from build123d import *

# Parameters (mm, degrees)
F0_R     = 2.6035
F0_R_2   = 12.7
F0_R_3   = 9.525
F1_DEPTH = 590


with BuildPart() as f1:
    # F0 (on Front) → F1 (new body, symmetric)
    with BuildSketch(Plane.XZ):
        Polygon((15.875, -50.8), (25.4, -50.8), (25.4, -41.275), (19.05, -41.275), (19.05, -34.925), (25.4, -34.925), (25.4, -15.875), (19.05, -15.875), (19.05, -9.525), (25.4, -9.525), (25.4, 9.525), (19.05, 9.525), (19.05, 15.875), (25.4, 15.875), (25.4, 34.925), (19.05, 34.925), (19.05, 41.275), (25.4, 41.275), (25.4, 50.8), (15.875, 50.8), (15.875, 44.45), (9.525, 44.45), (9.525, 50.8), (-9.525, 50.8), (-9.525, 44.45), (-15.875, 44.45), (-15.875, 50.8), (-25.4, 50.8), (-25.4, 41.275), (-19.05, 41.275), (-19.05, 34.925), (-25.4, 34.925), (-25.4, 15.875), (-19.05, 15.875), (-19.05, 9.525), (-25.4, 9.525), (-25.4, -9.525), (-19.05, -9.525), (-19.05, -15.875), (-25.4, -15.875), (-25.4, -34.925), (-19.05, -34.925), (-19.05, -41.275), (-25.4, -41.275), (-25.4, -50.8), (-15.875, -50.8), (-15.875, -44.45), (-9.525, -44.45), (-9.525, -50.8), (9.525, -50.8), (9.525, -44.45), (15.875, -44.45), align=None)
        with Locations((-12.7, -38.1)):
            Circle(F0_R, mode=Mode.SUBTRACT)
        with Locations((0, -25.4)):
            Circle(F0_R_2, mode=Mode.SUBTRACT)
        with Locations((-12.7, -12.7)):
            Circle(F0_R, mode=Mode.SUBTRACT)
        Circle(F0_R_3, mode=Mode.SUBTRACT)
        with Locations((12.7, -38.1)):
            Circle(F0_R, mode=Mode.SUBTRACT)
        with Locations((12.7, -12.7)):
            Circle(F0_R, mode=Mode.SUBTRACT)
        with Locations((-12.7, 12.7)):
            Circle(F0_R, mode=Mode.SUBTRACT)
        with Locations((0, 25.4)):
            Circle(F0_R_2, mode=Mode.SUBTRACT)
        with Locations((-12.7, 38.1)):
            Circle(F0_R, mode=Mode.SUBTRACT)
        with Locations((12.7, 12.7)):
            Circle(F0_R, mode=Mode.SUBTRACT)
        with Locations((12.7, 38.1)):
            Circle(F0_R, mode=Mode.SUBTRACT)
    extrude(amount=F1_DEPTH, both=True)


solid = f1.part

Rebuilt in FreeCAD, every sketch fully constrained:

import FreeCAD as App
import Part
import Sketcher
from FreeCAD import Vector
Q = App.Units.Quantity

doc = App.newDocument("Part")
body = doc.addObject("PartDesign::Body", "Body")

# Sketch on XZ plane
sketch1 = body.newObject("Sketcher::SketchObject", "Sketch")
sketch1.AttachmentSupport = (doc.getObject("XZ_Plane"), [""])
sketch1.MapMode = "FlatFace"
sketch1.addGeometry([
    Part.LineSegment(Vector(15.9, -50.8, 0), Vector(25.4, -50.8, 0)),  # 0
    Part.LineSegment(Vector(25.4, -50.8, 0), Vector(25.4, -41.3, 0)),  # 1
    Part.LineSegment(Vector(25.4, -41.3, 0), Vector(19.1, -41.3, 0)),  # 2
    Part.LineSegment(Vector(19.1, -41.3, 0), Vector(19.1, -34.9, 0)),  # 3
    Part.LineSegment(Vector(19.1, -34.9, 0), Vector(25.4, -34.9, 0)),  # 4
    Part.LineSegment(Vector(25.4, -34.9, 0), Vector(25.4, -15.9, 0)),  # 5
    Part.LineSegment(Vector(25.4, -15.9, 0), Vector(19.1, -15.9, 0)),  # 6
    Part.LineSegment(Vector(19.1, -15.9, 0), Vector(19.1, -9.5, 0)),  # 7
    Part.LineSegment(Vector(19.1, -9.5, 0), Vector(25.4, -9.5, 0)),  # 8
    Part.LineSegment(Vector(25.4, -9.5, 0), Vector(25.4, 9.5, 0)),  # 9
    Part.LineSegment(Vector(25.4, 9.5, 0), Vector(19.1, 9.5, 0)),  # 10
    Part.LineSegment(Vector(19.1, 9.5, 0), Vector(19.1, 15.9, 0)),  # 11
    Part.LineSegment(Vector(19.1, 15.9, 0), Vector(25.4, 15.9, 0)),  # 12
    Part.LineSegment(Vector(25.4, 15.9, 0), Vector(25.4, 34.9, 0)),  # 13
    Part.LineSegment(Vector(25.4, 34.9, 0), Vector(19.1, 34.9, 0)),  # 14
    Part.LineSegment(Vector(19.1, 34.9, 0), Vector(19.1, 41.3, 0)),  # 15
    Part.LineSegment(Vector(19.1, 41.3, 0), Vector(25.4, 41.3, 0)),  # 16
    Part.LineSegment(Vector(25.4, 41.3, 0), Vector(25.4, 50.8, 0)),  # 17
    Part.LineSegment(Vector(25.4, 50.8, 0), Vector(15.9, 50.8, 0)),  # 18
    Part.LineSegment(Vector(15.9, 50.8, 0), Vector(15.9, 44.5, 0)),  # 19
    Part.LineSegment(Vector(15.9, 44.5, 0), Vector(9.5, 44.5, 0)),  # 20
    Part.LineSegment(Vector(9.5, 44.5, 0), Vector(9.5, 50.8, 0)),  # 21
    Part.LineSegment(Vector(9.5, 50.8, 0), Vector(-9.5, 50.8, 0)),  # 22
    Part.LineSegment(Vector(-9.5, 50.8, 0), Vector(-9.5, 44.5, 0)),  # 23
    Part.LineSegment(Vector(-9.5, 44.5, 0), Vector(-15.9, 44.5, 0)),  # 24
    Part.LineSegment(Vector(-15.9, 44.5, 0), Vector(-15.9, 50.8, 0)),  # 25
    Part.LineSegment(Vector(-15.9, 50.8, 0), Vector(-25.4, 50.8, 0)),  # 26
    Part.LineSegment(Vector(-25.4, 50.8, 0), Vector(-25.4, 41.3, 0)),  # 27
    Part.LineSegment(Vector(-25.4, 41.3, 0), Vector(-19.1, 41.3, 0)),  # 28
    Part.LineSegment(Vector(-19.1, 41.3, 0), Vector(-19.1, 34.9, 0)),  # 29
    Part.LineSegment(Vector(-19.1, 34.9, 0), Vector(-25.4, 34.9, 0)),  # 30
    Part.LineSegment(Vector(-25.4, 34.9, 0), Vector(-25.4, 15.9, 0)),  # 31
    Part.LineSegment(Vector(-25.4, 15.9, 0), Vector(-19.1, 15.9, 0)),  # 32
    Part.LineSegment(Vector(-19.1, 15.9, 0), Vector(-19.1, 9.5, 0)),  # 33
    Part.LineSegment(Vector(-19.1, 9.5, 0), Vector(-25.4, 9.5, 0)),  # 34
    Part.LineSegment(Vector(-25.4, 9.5, 0), Vector(-25.4, -9.5, 0)),  # 35
    Part.LineSegment(Vector(-25.4, -9.5, 0), Vector(-19.1, -9.5, 0)),  # 36
    Part.LineSegment(Vector(-19.1, -9.5, 0), Vector(-19.1, -15.9, 0)),  # 37
    Part.LineSegment(Vector(-19.1, -15.9, 0), Vector(-25.4, -15.9, 0)),  # 38
    Part.LineSegment(Vector(-25.4, -15.9, 0), Vector(-25.4, -34.9, 0)),  # 39
    Part.LineSegment(Vector(-25.4, -34.9, 0), Vector(-19.1, -34.9, 0)),  # 40
    Part.LineSegment(Vector(-19.1, -34.9, 0), Vector(-19.1, -41.3, 0)),  # 41
    Part.LineSegment(Vector(-19.1, -41.3, 0), Vector(-25.4, -41.3, 0)),  # 42
    Part.LineSegment(Vector(-25.4, -41.3, 0), Vector(-25.4, -50.8, 0)),  # 43
    Part.LineSegment(Vector(-25.4, -50.8, 0), Vector(-15.9, -50.8, 0)),  # 44
    Part.LineSegment(Vector(-15.9, -50.8, 0), Vector(-15.9, -44.5, 0)),  # 45
    Part.LineSegment(Vector(-15.9, -44.5, 0), Vector(-9.5, -44.5, 0)),  # 46
    Part.LineSegment(Vector(-9.5, -44.5, 0), Vector(-9.5, -50.8, 0)),  # 47
    Part.LineSegment(Vector(-9.5, -50.8, 0), Vector(9.5, -50.8, 0)),  # 48
    Part.LineSegment(Vector(9.5, -50.8, 0), Vector(9.5, -44.5, 0)),  # 49
    Part.LineSegment(Vector(9.5, -44.5, 0), Vector(15.9, -44.5, 0)),  # 50
    Part.LineSegment(Vector(15.9, -44.5, 0), Vector(15.9, -50.8, 0)),  # 51
    Part.Circle(Vector(-12.7, -38.1, 0), Vector(0, 0, 1), 2.6),  # 52
    Part.Circle(Vector(-12.7, -12.7, 0), Vector(0, 0, 1), 2.6),  # 53
    Part.Circle(Vector(0, -25.4, 0), Vector(0, 0, 1), 12.7),  # 54
    Part.Circle(Vector(12.7, -38.1, 0), Vector(0, 0, 1), 2.6),  # 55
    Part.Circle(Vector(12.7, -12.7, 0), Vector(0, 0, 1), 2.6),  # 56
    Part.Circle(Vector(-12.7, 12.7, 0), Vector(0, 0, 1), 2.6),  # 57
    Part.Circle(Vector(-12.7, 38.1, 0), Vector(0, 0, 1), 2.6),  # 58
    Part.Circle(Vector(0, 0, 0), Vector(0, 0, 1), 9.5),  # 59
    Part.Circle(Vector(12.7, 12.7, 0), Vector(0, 0, 1), 2.6),  # 60
    Part.Circle(Vector(0, 25.4, 0), Vector(0, 0, 1), 12.7),  # 61
    Part.Circle(Vector(12.7, 38.1, 0), Vector(0, 0, 1), 2.6),  # 62
], False)
sketch1.addConstraint([
    Sketcher.Constraint("Coincident", 0, 2, 1, 1),
    Sketcher.Constraint("Coincident", 1, 2, 2, 1),
    Sketcher.Constraint("Coincident", 2, 2, 3, 1),
    Sketcher.Constraint("Coincident", 3, 2, 4, 1),
    Sketcher.Constraint("Coincident", 4, 2, 5, 1),
    Sketcher.Constraint("Coincident", 5, 2, 6, 1),
    Sketcher.Constraint("Coincident", 6, 2, 7, 1),
    Sketcher.Constraint("Coincident", 7, 2, 8, 1),
    Sketcher.Constraint("Coincident", 8, 2, 9, 1),
    Sketcher.Constraint("Coincident", 9, 2, 10, 1),
    Sketcher.Constraint("Coincident", 10, 2, 11, 1),
    Sketcher.Constraint("Coincident", 11, 2, 12, 1),
    Sketcher.Constraint("Coincident", 12, 2, 13, 1),
    Sketcher.Constraint("Coincident", 13, 2, 14, 1),
    Sketcher.Constraint("Coincident", 14, 2, 15, 1),
    Sketcher.Constraint("Coincident", 15, 2, 16, 1),
    Sketcher.Constraint("Coincident", 16, 2, 17, 1),
    Sketcher.Constraint("Coincident", 17, 2, 18, 1),
    Sketcher.Constraint("Coincident", 18, 2, 19, 1),
    Sketcher.Constraint("Coincident", 19, 2, 20, 1),
    Sketcher.Constraint("Coincident", 20, 2, 21, 1),
    Sketcher.Constraint("Coincident", 21, 2, 22, 1),
    Sketcher.Constraint("Coincident", 22, 2, 23, 1),
    Sketcher.Constraint("Coincident", 23, 2, 24, 1),
    Sketcher.Constraint("Coincident", 24, 2, 25, 1),
    Sketcher.Constraint("Coincident", 25, 2, 26, 1),
    Sketcher.Constraint("Coincident", 26, 2, 27, 1),
    Sketcher.Constraint("Coincident", 27, 2, 28, 1),
    Sketcher.Constraint("Coincident", 28, 2, 29, 1),
    Sketcher.Constraint("Coincident", 29, 2, 30, 1),
    Sketcher.Constraint("Coincident", 30, 2, 31, 1),
    Sketcher.Constraint("Coincident", 31, 2, 32, 1),
    Sketcher.Constraint("Coincident", 32, 2, 33, 1),
    Sketcher.Constraint("Coincident", 33, 2, 34, 1),
    Sketcher.Constraint("Coincident", 34, 2, 35, 1),
    Sketcher.Constraint("Coincident", 35, 2, 36, 1),
    Sketcher.Constraint("Coincident", 36, 2, 37, 1),
    Sketcher.Constraint("Coincident", 37, 2, 38, 1),
    Sketcher.Constraint("Coincident", 38, 2, 39, 1),
    Sketcher.Constraint("Coincident", 39, 2, 40, 1),
    Sketcher.Constraint("Coincident", 40, 2, 41, 1),
    Sketcher.Constraint("Coincident", 41, 2, 42, 1),
    Sketcher.Constraint("Coincident", 42, 2, 43, 1),
    Sketcher.Constraint("Coincident", 43, 2, 44, 1),
    Sketcher.Constraint("Coincident", 44, 2, 45, 1),
    Sketcher.Constraint("Coincident", 45, 2, 46, 1),
    Sketcher.Constraint("Coincident", 46, 2, 47, 1),
    Sketcher.Constraint("Coincident", 47, 2, 48, 1),
    Sketcher.Constraint("Coincident", 48, 2, 49, 1),
    Sketcher.Constraint("Coincident", 49, 2, 50, 1),
    Sketcher.Constraint("Coincident", 50, 2, 51, 1),
    Sketcher.Constraint("Coincident", 51, 2, 0, 1),
    Sketcher.Constraint("Horizontal", 0),
    Sketcher.Constraint("Vertical", 1),
    Sketcher.Constraint("Horizontal", 2),
    Sketcher.Constraint("Vertical", 3),
    Sketcher.Constraint("Horizontal", 4),
    Sketcher.Constraint("Vertical", 5),
    Sketcher.Constraint("Horizontal", 6),
    Sketcher.Constraint("Vertical", 7),
    Sketcher.Constraint("Horizontal", 8),
    Sketcher.Constraint("Vertical", 9),
    Sketcher.Constraint("Horizontal", 10),
    Sketcher.Constraint("Vertical", 11),
    Sketcher.Constraint("Horizontal", 12),
    Sketcher.Constraint("Vertical", 13),
    Sketcher.Constraint("Horizontal", 14),
    Sketcher.Constraint("Vertical", 15),
    Sketcher.Constraint("Horizontal", 16),
    Sketcher.Constraint("Vertical", 17),
    Sketcher.Constraint("Horizontal", 18),
    Sketcher.Constraint("Vertical", 19),
    Sketcher.Constraint("Horizontal", 20),
    Sketcher.Constraint("Vertical", 21),
    Sketcher.Constraint("Horizontal", 22),
    Sketcher.Constraint("Vertical", 23),
    Sketcher.Constraint("Horizontal", 24),
    Sketcher.Constraint("Vertical", 25),
    Sketcher.Constraint("Horizontal", 26),
    Sketcher.Constraint("Vertical", 27),
    Sketcher.Constraint("Horizontal", 28),
    Sketcher.Constraint("Vertical", 29),
    Sketcher.Constraint("Horizontal", 30),
    Sketcher.Constraint("Vertical", 31),
    Sketcher.Constraint("Horizontal", 32),
    Sketcher.Constraint("Vertical", 33),
    Sketcher.Constraint("Horizontal", 34),
    Sketcher.Constraint("Vertical", 35),
    Sketcher.Constraint("Horizontal", 36),
    Sketcher.Constraint("Vertical", 37),
    Sketcher.Constraint("Horizontal", 38),
    Sketcher.Constraint("Vertical", 39),
    Sketcher.Constraint("Horizontal", 40),
    Sketcher.Constraint("Vertical", 41),
    Sketcher.Constraint("Horizontal", 42),
    Sketcher.Constraint("Vertical", 43),
    Sketcher.Constraint("Horizontal", 44),
    Sketcher.Constraint("Vertical", 45),
    Sketcher.Constraint("Horizontal", 46),
    Sketcher.Constraint("Vertical", 47),
    Sketcher.Constraint("Horizontal", 48),
    Sketcher.Constraint("Vertical", 49),
    Sketcher.Constraint("Horizontal", 50),
    Sketcher.Constraint("Vertical", 51),
    Sketcher.Constraint("Coincident", 59, 3, -1, 1),
    Sketcher.Constraint("Equal", 52, 53),
    Sketcher.Constraint("Equal", 53, 55),
    Sketcher.Constraint("Equal", 55, 56),
    Sketcher.Constraint("Equal", 56, 57),
    Sketcher.Constraint("Equal", 57, 58),
    Sketcher.Constraint("Equal", 58, 60),
    Sketcher.Constraint("Equal", 54, 61),
    Sketcher.Constraint("Equal", 60, 62),
    Sketcher.Constraint("Symmetric", 56, 3, 57, 3, -1, 1),
    Sketcher.Constraint("Symmetric", 55, 3, 58, 3, -1, 1),
    Sketcher.Constraint("Symmetric", 53, 3, 60, 3, -1, 1),
    Sketcher.Constraint("Symmetric", 54, 3, 61, 3, -1, 1),
    Sketcher.Constraint("Symmetric", 52, 3, 62, 3, -1, 1),
    Sketcher.Constraint("Symmetric", 0, 2, 26, 2, -1, 1),
    Sketcher.Constraint("Symmetric", 2, 2, 28, 2, -1, 1),
    Sketcher.Constraint("Symmetric", 4, 2, 30, 2, -1, 1),
    Sketcher.Constraint("Symmetric", 6, 2, 32, 2, -1, 1),
    Sketcher.Constraint("Symmetric", 8, 2, 34, 2, -1, 1),
    Sketcher.Constraint("Symmetric", 10, 2, 36, 2, -1, 1),
    Sketcher.Constraint("Symmetric", 12, 2, 38, 2, -1, 1),
    Sketcher.Constraint("Symmetric", 14, 2, 40, 2, -1, 1),
    Sketcher.Constraint("Symmetric", 16, 2, 42, 2, -1, 1),
    Sketcher.Constraint("Symmetric", 18, 2, 44, 2, -1, 1),
    Sketcher.Constraint("Symmetric", 20, 2, 46, 2, -1, 1),
    Sketcher.Constraint("Symmetric", 22, 2, 48, 2, -1, 1),
    Sketcher.Constraint("Symmetric", 24, 2, 50, 2, -1, 1),
    Sketcher.Constraint("Symmetric", 52, 3, 55, 3, -2),
    Sketcher.Constraint("Symmetric", 53, 3, 56, 3, -2),
    Sketcher.Constraint("Symmetric", 20, 2, 23, 2, -2),
    Sketcher.Constraint("Symmetric", 18, 2, 25, 2, -2),
    Sketcher.Constraint("Symmetric", 16, 2, 27, 2, -2),
    Sketcher.Constraint("Symmetric", 14, 2, 29, 2, -2),
    Sketcher.Constraint("Symmetric", 12, 2, 31, 2, -2),
    Sketcher.Constraint("Symmetric", 10, 2, 33, 2, -2),
    Sketcher.Constraint("PointOnObject", 54, 3, -2),
    Sketcher.Constraint("Horizontal", 18, 2, 21, 2),
    Sketcher.Constraint("Vertical", 52, 3, 53, 3),
    Sketcher.Constraint("Vertical", 1, 2, 4, 2),
    Sketcher.Constraint("Vertical", 3, 2, 6, 2),
    Sketcher.Constraint("Vertical", 5, 2, 8, 2),
    Sketcher.Constraint("Equal", 16, 20),
    Sketcher.Constraint("Equal", 44, 1),
    Sketcher.Constraint("Equal", 50, 3),
    Sketcher.Constraint("Equal", 48, 5),
    Sketcher.Constraint("Equal", 3, 7),
    Sketcher.Constraint("Equal", 5, 9),
    Sketcher.Constraint("Equal", 15, 19),
    Sketcher.Constraint("Diameter", 54, Q("1 in")),
    Sketcher.Constraint("Diameter", 59, Q("0.75 in")),
    Sketcher.Constraint("Diameter", 52, Q("0.205 in")),
    Sketcher.Constraint("DistanceY", 54, 3, -1, 1, Q("1 in")),
    Sketcher.Constraint("DistanceX", -1, 1, 0, 2, Q("1 in")),
    Sketcher.Constraint("DistanceY", 0, 2, -1, 1, Q("2 in")),
    Sketcher.Constraint("DistanceX", 2, 2, 2, 1, Q("0.25 in")),
    Sketcher.Constraint("DistanceX", 52, 3, -1, 1, Q("0.5 in")),
    Sketcher.Constraint("DistanceY", 52, 3, -1, 1, Q("1.5 in")),
    Sketcher.Constraint("DistanceY", 53, 3, -1, 1, Q("0.5 in")),
])
pad1 = body.newObject("PartDesign::Pad", "Pad")
pad1.Profile = sketch1
pad1.Length = 1180
pad1.Midplane = True

doc.recompute()
